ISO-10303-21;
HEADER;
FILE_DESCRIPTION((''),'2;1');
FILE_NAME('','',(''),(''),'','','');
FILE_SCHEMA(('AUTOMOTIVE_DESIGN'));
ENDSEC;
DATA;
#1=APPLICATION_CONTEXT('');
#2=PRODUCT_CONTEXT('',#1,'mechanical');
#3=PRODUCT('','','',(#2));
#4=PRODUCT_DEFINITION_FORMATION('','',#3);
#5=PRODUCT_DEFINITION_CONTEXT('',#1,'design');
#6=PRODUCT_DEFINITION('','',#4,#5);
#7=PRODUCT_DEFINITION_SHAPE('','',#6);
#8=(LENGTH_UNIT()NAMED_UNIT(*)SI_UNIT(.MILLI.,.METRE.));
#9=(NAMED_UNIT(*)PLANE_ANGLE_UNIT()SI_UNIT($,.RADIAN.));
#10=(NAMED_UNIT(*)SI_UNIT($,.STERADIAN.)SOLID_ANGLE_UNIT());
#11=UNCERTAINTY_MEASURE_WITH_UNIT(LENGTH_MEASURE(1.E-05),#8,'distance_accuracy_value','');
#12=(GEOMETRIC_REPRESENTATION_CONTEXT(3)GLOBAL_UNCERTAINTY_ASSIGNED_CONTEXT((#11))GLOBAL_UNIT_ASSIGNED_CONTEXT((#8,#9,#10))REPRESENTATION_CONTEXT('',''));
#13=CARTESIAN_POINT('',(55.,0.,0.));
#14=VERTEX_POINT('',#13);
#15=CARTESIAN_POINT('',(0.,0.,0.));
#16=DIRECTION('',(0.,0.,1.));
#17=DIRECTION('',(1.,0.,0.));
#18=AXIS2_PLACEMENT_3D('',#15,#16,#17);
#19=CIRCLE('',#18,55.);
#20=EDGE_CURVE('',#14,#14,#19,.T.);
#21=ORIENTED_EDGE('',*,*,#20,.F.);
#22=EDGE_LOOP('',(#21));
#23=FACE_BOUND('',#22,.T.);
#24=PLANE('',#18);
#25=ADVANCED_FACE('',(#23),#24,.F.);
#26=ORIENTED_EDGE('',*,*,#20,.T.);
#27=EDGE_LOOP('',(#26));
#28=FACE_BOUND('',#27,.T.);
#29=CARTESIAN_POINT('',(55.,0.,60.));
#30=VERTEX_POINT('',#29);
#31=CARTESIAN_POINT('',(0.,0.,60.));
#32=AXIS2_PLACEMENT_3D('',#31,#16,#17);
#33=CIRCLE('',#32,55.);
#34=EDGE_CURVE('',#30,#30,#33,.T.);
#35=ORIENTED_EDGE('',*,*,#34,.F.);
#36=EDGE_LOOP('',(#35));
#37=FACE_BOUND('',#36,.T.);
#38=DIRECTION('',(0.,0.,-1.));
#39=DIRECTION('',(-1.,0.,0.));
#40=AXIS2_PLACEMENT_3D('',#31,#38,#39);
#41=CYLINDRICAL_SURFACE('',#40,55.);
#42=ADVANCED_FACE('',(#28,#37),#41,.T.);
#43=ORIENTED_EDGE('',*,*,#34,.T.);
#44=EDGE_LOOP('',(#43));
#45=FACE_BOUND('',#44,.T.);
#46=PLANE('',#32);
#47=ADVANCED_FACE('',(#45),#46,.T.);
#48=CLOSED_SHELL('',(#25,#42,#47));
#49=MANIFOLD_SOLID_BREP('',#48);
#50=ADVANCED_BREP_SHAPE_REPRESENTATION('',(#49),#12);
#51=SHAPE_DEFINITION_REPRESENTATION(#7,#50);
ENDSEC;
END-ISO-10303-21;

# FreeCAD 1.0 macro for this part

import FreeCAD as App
import Part
import Sketcher

V = App.Vector
Q = App.Units.Quantity

doc = App.newDocument("Part")
body = doc.addObject("PartDesign::Body", "Body")

sketch1 = doc.addObject("Sketcher::SketchObject", "Sketch")
body.addObject(sketch1)
sketch1.AttachmentSupport = (doc.XY_Plane, [""])
sketch1.MapMode = "FlatFace"
sketch1.addGeometry(Part.Circle(V(0, 0, 0), V(0, 0, 1), 55), False)
sketch1.addConstraint([
    Sketcher.Constraint("Coincident", 0, 3, -1, 1),
    Sketcher.Constraint("Diameter", 0, Q("110 mm")),
])
pad1 = doc.addObject("PartDesign::Pad", "Pad")
body.addObject(pad1)
pad1.Profile = sketch1
pad1.Length = 60

doc.recompute()
